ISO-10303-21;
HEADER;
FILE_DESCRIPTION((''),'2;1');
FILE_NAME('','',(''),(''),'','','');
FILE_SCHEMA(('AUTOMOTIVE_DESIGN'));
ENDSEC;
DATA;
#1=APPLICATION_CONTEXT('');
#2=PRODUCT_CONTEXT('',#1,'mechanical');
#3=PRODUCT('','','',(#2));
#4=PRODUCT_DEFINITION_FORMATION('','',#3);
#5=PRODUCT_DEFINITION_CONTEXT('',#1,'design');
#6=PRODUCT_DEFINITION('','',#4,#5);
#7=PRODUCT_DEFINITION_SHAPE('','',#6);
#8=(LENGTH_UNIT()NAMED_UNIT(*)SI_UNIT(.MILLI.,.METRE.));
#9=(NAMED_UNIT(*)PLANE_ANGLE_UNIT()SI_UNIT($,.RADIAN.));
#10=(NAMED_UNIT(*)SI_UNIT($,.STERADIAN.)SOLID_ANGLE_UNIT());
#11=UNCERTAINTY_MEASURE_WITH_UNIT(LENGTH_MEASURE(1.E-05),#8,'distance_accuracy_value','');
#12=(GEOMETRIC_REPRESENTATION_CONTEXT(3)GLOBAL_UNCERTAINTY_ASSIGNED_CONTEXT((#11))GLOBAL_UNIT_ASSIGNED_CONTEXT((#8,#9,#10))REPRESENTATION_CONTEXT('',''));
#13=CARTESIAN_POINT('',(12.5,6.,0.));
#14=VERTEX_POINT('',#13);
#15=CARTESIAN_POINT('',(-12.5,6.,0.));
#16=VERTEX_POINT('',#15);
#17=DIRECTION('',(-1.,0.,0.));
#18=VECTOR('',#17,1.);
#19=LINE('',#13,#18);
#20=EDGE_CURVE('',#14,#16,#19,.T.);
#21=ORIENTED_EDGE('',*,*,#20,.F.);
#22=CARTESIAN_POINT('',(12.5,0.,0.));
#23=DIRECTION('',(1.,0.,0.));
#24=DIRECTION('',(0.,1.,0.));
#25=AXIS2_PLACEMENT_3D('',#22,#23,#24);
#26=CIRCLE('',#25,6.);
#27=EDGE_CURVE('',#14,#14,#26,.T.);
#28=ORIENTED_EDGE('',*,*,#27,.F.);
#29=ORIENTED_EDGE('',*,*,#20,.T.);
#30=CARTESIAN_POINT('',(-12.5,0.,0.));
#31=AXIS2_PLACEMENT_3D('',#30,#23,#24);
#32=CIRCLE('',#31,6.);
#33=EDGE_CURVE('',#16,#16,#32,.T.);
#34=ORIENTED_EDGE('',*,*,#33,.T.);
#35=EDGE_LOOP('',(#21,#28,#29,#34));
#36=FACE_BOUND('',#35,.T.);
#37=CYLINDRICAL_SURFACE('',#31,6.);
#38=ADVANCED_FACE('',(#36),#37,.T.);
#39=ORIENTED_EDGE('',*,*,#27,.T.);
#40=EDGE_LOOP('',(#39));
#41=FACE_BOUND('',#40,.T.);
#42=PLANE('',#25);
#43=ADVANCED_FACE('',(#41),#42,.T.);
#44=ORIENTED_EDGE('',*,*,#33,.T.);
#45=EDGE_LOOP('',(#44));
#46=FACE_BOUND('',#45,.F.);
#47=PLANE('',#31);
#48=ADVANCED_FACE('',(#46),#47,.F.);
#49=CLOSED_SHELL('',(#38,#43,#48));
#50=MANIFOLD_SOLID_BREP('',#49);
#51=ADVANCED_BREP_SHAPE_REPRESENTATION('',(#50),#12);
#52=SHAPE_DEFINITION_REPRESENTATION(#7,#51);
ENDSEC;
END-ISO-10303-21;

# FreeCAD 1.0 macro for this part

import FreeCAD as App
import Part
import Sketcher

V = App.Vector
Q = App.Units.Quantity


def add_polygon(sketch, points):
    """Adds a closed chain of lines whose ends are joined by coincident constraints."""
    first, n = sketch.GeometryCount, len(points)
    for a, b in zip(points, points[1:] + points[:1]):
        sketch.addGeometry(Part.LineSegment(App.Vector(*a, 0), App.Vector(*b, 0)), False)
    for i in range(n):
        sketch.addConstraint(Sketcher.Constraint("Coincident", first + i, 2, first + (i + 1) % n, 1))

doc = App.newDocument("Part")
body = doc.addObject("PartDesign::Body", "Body")

# Sketch on XY plane
sketch1 = doc.addObject("Sketcher::SketchObject", "Sketch")
body.addObject(sketch1)
sketch1.AttachmentSupport = (doc.XY_Plane, [""])
sketch1.MapMode = "FlatFace"
add_polygon(sketch1, [(12, 0), (12, 6), (-12, 6), (-12, 0)])  # lines 0-3
sketch1.addConstraint([
    Sketcher.Constraint("Vertical", 0),
    Sketcher.Constraint("Horizontal", 1),
    Sketcher.Constraint("Vertical", 2),
    Sketcher.Constraint("Horizontal", 3),
    Sketcher.Constraint("Symmetric", 2, 2, 3, 2, -1, 1),
    Sketcher.Constraint("DistanceX", 1, 2, 1, 1, Q("25 mm")),
    Sketcher.Constraint("DistanceY", 0, 1, 0, 2, Q("6 mm")),
])
revolution = doc.addObject("PartDesign::Revolution", "Revolution")
body.addObject(revolution)
revolution.Profile = sketch1
revolution.ReferenceAxis = (sketch1, ["H_Axis"])
revolution.Angle = 360

doc.recompute()
